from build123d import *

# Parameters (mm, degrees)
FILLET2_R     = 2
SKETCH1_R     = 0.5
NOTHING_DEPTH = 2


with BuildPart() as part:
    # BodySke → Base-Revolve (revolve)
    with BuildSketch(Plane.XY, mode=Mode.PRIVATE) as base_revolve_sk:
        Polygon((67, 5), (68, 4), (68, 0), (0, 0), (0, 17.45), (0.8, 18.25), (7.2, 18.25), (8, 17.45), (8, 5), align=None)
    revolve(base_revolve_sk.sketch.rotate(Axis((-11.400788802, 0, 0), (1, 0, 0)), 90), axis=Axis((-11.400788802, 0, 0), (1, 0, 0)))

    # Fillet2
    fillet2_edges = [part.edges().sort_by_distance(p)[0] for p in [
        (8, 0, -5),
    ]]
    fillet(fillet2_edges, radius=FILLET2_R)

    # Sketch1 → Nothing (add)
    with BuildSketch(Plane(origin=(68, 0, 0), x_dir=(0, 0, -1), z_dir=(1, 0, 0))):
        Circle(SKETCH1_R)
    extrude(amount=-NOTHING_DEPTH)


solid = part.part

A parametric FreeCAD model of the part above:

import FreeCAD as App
import Part
import Sketcher

V = App.Vector


def edges_at(feature, points):
    """Names of the edges that pass closest to the given points."""
    edges = feature.Shape.Edges
    near = lambda p: min(range(len(edges)), key=lambda i: edges[i].distToShape(Part.Vertex(*p))[0])
    return sorted({f"Edge{near(p) + 1}" for p in points})

doc = App.newDocument("Part")
params = doc.addObject("Spreadsheet::Sheet", "Params")
for row, (alias, value) in enumerate([
    ("sketch1_width", "59 mm"),
    ("sketch1_width2", "68 mm"),
    ("sketch1_height", "4 mm"),
    ("sketch1_width3", "6.4 mm"),
    ("sketch1_height2", "12.45 mm"),
    ("revolution_angle", "360 deg"),
    ("fillet_radius", "2 mm"),
    ("sketch2_diameter", "1 mm"),
    ("pad1_length", "2 mm"),
], start=1):
    params.set(f"A{row}", alias)
    params.set(f"B{row}", "=" + value)
    params.setAlias(f"B{row}", alias)

body = doc.addObject("PartDesign::Body", "Body")

sketch1 = doc.addObject("Sketcher::SketchObject", "Sketch")
body.addObject(sketch1)
sketch1.AttachmentSupport = (doc.XY_Plane, [""])
sketch1.MapMode = "FlatFace"
sketch1.addGeometry([
    Part.LineSegment(V(68, 4, 0), V(67, 5, 0)),
    Part.LineSegment(V(67, 5, 0), V(8, 5, 0)),
    Part.LineSegment(V(8, 5, 0), V(8, 17.4, 0)),
    Part.LineSegment(V(8, 17.4, 0), V(7.2, 18.2, 0)),
    Part.LineSegment(V(7.2, 18.2, 0), V(0.8, 18.2, 0)),
    Part.LineSegment(V(0.8, 18.2, 0), V(0, 17.4, 0)),
    Part.LineSegment(V(0, 17.4, 0), V(0, 0, 0)),
    Part.LineSegment(V(0, 0, 0), V(68, 0, 0)),
    Part.LineSegment(V(68, 0, 0), V(68, 4, 0)),
], False)
sketch1.addConstraint([
    Sketcher.Constraint("Coincident", 0, 2, 1, 1),
    Sketcher.Constraint("Coincident", 1, 2, 2, 1),
    Sketcher.Constraint("Coincident", 2, 2, 3, 1),
    Sketcher.Constraint("Coincident", 3, 2, 4, 1),
    Sketcher.Constraint("Coincident", 4, 2, 5, 1),
    Sketcher.Constraint("Coincident", 5, 2, 6, 1),
    Sketcher.Constraint("Coincident", 6, 2, 7, 1),
    Sketcher.Constraint("Coincident", 7, 2, 8, 1),
    Sketcher.Constraint("Coincident", 8, 2, 0, 1),
    Sketcher.Constraint("Horizontal", 1),
    Sketcher.Constraint("Vertical", 2),
    Sketcher.Constraint("Horizontal", 4),
    Sketcher.Constraint("Vertical", 6),
    Sketcher.Constraint("Horizontal", 7),
    Sketcher.Constraint("Vertical", 8),
    Sketcher.Constraint("Coincident", 6, 2, -1, 1),
    Sketcher.Constraint("Parallel", 0, 3),
    Sketcher.Constraint("Perpendicular", 3, 5),
    Sketcher.Constraint("Horizontal", 2, 2, 5, 2),
    Sketcher.Constraint("Equal", 3, 5),
    Sketcher.Constraint("DistanceX", 1, 2, 1, 1, 59.0),
    Sketcher.Constraint("DistanceX", 7, 1, 7, 2, 68.0),
    Sketcher.Constraint("DistanceY", 8, 1, 8, 2, 4.0),
    Sketcher.Constraint("DistanceX", 4, 2, 4, 1, 6.4),
    Sketcher.Constraint("DistanceX", -1, 1, 0, 2, 67.0),
    Sketcher.Constraint("DistanceY", 2, 1, 2, 2, 12.45),
])
sketch1.setExpression("Constraints[20]", "Params.sketch1_width")
sketch1.setExpression("Constraints[21]", "Params.sketch1_width2")
sketch1.setExpression("Constraints[22]", "Params.sketch1_height")
sketch1.setExpression("Constraints[23]", "Params.sketch1_width3")
sketch1.setExpression("Constraints[25]", "Params.sketch1_height2")
revolution = doc.addObject("PartDesign::Revolution", "Revolution")
body.addObject(revolution)
revolution.Profile = sketch1
revolution.ReferenceAxis = (sketch1, ["H_Axis"])
revolution.setExpression("Angle", "Params.revolution_angle")
doc.recompute()

fillet = doc.addObject("PartDesign::Fillet", "Fillet")
body.addObject(fillet)
fillet.Base = (revolution, edges_at(revolution, [(8, 0, -5)]))
fillet.setExpression("Radius", "Params.fillet_radius")

sketch2 = doc.addObject("Sketcher::SketchObject", "Sketch001")
body.addObject(sketch2)
sketch2.AttachmentSupport = (doc.YZ_Plane, [""])
sketch2.MapMode = "FlatFace"
sketch2.AttachmentOffset = App.Placement(V(0, 0, 68), App.Rotation())
sketch2.addGeometry(Part.Circle(V(0, 0, 0), V(0, 0, 1), 0.5), False)
sketch2.addConstraint([
    Sketcher.Constraint("Coincident", 0, 3, -1, 1),
    Sketcher.Constraint("Diameter", 0, 1.0),
])
sketch2.setExpression("Constraints[1]", "Params.sketch2_diameter")
pad1 = doc.addObject("PartDesign::Pad", "Pad")
body.addObject(pad1)
pad1.Profile = sketch2
pad1.setExpression("Length", "Params.pad1_length")
pad1.Reversed = True

doc.recompute()
